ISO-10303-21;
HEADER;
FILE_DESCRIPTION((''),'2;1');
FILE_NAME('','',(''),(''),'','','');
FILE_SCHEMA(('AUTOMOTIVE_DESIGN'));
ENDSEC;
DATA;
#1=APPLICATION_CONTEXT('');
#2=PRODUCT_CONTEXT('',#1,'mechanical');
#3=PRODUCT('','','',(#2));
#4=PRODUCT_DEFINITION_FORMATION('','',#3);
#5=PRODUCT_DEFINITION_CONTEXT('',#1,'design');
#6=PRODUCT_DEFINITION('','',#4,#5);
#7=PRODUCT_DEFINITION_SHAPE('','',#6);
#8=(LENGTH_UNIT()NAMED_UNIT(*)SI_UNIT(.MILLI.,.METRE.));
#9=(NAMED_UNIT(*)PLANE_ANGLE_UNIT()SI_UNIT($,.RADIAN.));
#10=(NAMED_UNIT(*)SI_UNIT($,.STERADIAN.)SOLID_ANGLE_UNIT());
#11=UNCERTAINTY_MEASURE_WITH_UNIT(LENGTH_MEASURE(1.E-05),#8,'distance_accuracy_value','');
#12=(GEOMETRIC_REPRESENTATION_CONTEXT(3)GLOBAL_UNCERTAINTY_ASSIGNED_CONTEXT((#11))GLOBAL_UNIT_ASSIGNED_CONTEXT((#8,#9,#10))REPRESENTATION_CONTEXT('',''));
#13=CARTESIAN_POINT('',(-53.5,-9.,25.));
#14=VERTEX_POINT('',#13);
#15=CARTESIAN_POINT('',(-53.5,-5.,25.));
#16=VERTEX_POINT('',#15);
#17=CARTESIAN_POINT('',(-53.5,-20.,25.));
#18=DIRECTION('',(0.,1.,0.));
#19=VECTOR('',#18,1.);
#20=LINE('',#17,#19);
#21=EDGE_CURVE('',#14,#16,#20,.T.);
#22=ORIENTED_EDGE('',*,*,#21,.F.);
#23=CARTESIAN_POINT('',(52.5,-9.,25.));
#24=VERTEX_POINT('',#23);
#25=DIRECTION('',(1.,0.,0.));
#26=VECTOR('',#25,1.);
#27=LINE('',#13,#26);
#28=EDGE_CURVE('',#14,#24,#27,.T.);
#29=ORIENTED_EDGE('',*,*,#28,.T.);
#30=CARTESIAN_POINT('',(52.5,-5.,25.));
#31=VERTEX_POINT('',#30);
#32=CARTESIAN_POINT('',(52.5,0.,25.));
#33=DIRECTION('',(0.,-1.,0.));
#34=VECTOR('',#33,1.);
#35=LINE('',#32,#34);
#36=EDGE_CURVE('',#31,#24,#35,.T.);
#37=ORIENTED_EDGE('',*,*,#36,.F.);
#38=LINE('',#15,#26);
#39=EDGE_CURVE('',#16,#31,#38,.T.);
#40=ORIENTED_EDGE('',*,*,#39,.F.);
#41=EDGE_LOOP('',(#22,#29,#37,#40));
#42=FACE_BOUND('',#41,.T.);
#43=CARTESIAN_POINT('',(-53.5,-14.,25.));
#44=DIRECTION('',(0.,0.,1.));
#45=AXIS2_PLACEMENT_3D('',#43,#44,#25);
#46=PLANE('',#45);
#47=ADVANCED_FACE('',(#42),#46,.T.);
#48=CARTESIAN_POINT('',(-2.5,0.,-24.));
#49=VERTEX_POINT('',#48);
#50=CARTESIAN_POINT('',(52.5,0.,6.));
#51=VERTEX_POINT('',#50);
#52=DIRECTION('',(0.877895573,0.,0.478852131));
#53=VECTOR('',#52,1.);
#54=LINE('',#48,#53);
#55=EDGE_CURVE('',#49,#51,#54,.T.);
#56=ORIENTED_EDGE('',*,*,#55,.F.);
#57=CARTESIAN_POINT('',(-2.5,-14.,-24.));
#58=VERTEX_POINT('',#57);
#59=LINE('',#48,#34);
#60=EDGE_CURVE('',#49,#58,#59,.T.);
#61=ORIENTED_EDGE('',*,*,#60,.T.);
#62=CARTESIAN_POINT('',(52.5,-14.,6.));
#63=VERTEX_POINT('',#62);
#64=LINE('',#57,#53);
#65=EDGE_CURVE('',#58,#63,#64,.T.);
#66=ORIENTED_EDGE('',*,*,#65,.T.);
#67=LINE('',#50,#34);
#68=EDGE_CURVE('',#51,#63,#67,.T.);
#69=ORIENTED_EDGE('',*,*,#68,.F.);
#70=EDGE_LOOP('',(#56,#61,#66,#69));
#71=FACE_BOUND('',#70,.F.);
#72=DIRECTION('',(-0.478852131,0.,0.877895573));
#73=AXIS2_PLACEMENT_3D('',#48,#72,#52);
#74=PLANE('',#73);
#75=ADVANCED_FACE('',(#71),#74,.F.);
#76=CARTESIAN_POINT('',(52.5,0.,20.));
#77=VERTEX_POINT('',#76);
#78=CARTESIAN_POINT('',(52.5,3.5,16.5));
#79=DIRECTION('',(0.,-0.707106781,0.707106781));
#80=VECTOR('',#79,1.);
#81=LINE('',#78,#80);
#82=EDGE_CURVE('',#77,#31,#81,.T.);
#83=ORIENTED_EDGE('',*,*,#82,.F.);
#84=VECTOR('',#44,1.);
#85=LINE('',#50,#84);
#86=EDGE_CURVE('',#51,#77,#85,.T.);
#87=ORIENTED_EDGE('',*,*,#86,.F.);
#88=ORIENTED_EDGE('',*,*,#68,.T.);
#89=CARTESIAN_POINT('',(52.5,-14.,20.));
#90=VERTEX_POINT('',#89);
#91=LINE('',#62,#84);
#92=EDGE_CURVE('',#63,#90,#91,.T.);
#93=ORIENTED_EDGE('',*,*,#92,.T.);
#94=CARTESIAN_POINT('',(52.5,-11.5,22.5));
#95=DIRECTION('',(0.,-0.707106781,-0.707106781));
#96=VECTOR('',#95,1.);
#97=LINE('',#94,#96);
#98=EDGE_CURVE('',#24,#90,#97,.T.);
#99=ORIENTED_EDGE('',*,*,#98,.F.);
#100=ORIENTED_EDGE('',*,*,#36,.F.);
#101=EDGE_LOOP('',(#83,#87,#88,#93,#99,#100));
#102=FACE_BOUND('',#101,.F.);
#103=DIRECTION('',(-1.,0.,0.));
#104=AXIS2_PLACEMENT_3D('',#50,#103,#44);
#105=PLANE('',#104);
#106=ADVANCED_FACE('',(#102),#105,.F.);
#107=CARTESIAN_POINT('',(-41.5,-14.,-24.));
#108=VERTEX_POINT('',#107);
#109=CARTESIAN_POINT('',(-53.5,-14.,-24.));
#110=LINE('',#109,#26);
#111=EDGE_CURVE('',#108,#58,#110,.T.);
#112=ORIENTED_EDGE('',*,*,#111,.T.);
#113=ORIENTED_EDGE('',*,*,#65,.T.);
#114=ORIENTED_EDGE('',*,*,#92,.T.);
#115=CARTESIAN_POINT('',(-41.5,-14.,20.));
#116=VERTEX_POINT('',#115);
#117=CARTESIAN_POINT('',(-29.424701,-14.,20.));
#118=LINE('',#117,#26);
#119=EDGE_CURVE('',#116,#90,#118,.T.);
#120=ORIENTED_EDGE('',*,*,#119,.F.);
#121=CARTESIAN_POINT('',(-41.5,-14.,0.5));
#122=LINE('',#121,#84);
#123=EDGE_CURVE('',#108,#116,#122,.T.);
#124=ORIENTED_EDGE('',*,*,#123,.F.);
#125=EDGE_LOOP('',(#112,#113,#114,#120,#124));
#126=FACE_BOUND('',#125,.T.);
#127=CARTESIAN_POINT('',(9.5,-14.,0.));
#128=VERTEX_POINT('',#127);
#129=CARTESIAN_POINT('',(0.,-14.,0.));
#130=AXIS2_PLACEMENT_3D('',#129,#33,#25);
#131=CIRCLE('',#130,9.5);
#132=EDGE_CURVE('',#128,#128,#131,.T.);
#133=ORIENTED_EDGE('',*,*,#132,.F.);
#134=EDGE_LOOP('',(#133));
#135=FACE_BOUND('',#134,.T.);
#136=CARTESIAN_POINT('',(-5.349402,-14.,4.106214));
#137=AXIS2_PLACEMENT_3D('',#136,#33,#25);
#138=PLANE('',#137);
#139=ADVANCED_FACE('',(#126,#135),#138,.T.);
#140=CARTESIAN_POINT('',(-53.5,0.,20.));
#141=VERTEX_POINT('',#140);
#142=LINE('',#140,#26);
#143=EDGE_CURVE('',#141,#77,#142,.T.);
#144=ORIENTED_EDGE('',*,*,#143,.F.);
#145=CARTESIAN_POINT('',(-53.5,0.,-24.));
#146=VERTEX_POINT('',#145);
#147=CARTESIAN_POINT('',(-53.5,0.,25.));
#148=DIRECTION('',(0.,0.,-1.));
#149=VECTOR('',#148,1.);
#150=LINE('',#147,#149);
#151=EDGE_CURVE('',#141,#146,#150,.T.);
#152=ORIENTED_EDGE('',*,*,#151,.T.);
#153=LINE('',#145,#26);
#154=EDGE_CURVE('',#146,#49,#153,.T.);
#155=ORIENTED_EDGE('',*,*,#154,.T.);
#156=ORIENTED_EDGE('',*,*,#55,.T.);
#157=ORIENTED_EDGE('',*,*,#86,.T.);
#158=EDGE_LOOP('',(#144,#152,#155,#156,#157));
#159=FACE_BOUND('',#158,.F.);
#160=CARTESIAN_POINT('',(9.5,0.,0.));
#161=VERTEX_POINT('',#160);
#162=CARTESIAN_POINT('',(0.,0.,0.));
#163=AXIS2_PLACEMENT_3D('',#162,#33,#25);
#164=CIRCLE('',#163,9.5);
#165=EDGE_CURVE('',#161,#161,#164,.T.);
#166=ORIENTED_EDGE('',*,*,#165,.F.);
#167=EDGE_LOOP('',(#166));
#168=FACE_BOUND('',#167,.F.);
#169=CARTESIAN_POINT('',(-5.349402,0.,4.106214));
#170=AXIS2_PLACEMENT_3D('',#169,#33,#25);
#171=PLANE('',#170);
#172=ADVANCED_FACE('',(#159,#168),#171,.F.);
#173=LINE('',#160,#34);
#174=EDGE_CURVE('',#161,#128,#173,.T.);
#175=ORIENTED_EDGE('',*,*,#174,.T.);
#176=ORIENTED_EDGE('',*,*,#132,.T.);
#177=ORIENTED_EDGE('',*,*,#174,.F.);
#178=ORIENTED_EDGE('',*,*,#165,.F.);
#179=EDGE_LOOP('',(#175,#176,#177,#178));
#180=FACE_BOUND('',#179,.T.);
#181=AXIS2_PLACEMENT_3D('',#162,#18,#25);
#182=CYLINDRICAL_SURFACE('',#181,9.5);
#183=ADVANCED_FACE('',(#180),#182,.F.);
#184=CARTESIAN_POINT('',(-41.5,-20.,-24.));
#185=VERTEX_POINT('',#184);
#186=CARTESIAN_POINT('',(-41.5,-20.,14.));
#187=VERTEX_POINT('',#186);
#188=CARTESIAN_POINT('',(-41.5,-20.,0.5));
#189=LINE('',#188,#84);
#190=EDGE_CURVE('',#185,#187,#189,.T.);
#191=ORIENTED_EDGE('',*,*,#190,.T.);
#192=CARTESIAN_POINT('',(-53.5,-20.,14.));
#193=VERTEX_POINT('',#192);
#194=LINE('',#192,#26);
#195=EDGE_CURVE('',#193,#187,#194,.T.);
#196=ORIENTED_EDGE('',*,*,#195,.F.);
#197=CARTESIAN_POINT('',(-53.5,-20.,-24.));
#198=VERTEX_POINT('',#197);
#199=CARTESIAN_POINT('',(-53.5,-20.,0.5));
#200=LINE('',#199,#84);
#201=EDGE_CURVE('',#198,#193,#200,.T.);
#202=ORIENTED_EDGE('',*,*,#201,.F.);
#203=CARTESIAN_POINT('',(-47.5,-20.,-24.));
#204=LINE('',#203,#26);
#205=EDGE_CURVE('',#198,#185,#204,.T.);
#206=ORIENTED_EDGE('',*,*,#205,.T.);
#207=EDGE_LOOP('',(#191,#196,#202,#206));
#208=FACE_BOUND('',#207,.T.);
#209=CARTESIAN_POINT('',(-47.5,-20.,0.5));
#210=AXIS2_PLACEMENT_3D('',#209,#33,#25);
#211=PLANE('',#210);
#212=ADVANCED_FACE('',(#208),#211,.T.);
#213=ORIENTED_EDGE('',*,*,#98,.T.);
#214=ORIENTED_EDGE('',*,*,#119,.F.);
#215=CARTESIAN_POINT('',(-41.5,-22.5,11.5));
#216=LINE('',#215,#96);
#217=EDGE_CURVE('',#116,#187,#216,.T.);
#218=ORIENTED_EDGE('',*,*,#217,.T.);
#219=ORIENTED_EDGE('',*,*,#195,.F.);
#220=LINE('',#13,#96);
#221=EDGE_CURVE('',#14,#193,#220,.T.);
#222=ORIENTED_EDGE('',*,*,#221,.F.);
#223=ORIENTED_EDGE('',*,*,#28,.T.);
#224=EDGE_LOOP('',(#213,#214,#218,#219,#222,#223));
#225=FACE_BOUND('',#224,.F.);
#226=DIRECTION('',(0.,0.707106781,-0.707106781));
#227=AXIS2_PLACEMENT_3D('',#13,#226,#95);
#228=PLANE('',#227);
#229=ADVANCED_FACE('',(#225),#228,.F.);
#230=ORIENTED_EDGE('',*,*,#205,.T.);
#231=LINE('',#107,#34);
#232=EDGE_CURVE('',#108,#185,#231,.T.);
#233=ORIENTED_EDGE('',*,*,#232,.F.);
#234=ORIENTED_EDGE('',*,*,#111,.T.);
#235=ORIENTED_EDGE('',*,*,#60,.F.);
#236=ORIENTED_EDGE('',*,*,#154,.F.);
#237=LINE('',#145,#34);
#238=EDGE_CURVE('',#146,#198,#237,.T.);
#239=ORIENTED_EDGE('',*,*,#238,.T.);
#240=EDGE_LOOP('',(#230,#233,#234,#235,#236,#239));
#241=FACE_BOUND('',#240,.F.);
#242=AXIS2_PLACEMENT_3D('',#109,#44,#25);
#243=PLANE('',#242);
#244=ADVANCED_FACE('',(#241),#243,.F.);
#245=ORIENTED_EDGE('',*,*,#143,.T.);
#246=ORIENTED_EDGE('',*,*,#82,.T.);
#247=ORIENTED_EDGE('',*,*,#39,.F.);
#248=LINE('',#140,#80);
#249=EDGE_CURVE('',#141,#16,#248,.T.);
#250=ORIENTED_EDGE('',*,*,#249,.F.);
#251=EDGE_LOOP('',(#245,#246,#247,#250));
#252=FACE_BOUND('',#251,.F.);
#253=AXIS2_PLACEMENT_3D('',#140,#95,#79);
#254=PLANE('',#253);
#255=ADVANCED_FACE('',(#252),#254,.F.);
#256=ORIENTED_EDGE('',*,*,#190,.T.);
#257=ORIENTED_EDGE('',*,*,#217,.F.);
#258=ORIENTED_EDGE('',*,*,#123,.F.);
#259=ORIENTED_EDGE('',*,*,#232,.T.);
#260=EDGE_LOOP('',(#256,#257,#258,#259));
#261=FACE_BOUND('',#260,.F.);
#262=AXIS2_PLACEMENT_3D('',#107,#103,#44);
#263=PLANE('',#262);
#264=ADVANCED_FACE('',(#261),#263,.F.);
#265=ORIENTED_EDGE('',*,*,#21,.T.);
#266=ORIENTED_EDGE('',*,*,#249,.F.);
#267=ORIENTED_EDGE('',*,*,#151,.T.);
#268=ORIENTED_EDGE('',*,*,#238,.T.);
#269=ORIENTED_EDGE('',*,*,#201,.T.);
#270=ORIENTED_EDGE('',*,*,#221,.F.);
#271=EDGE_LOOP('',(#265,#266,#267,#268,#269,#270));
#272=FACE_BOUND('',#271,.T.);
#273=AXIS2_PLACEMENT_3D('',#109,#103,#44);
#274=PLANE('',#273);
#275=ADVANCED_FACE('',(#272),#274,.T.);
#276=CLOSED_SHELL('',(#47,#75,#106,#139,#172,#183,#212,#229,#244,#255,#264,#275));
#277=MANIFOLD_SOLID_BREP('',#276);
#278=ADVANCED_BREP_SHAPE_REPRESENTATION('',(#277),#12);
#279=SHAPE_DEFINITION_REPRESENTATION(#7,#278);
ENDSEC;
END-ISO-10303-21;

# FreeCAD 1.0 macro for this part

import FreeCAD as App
import Part
import Sketcher

V = App.Vector

doc = App.newDocument("Part")
body = doc.addObject("PartDesign::Body", "Body")

sketch1 = doc.addObject("Sketcher::SketchObject", "Sketch")
body.addObject(sketch1)
sketch1.AttachmentSupport = (doc.XZ_Plane, [""])
sketch1.MapMode = "FlatFace"
sketch1.addGeometry([
    Part.LineSegment(V(52, 25, 0), V(-54, 25, 0)),
    Part.LineSegment(V(-54, 25, 0), V(-54, -24, 0)),
    Part.LineSegment(V(-54, -24, 0), V(-2, -24, 0)),
    Part.LineSegment(V(-2, -24, 0), V(52, 6, 0)),
    Part.LineSegment(V(52, 6, 0), V(52, 25, 0)),
    Part.Circle(V(0, 0, 0), V(0, 0, 1), 10),
], False)
sketch1.addConstraint([
    Sketcher.Constraint("Coincident", 0, 2, 1, 1),
    Sketcher.Constraint("Coincident", 1, 2, 2, 1),
    Sketcher.Constraint("Coincident", 2, 2, 3, 1),
    Sketcher.Constraint("Coincident", 3, 2, 4, 1),
    Sketcher.Constraint("Coincident", 4, 2, 0, 1),
    Sketcher.Constraint("Horizontal", 0),
    Sketcher.Constraint("Vertical", 1),
    Sketcher.Constraint("Horizontal", 2),
    Sketcher.Constraint("Vertical", 4),
    Sketcher.Constraint("Coincident", 5, 3, -1, 1),
    Sketcher.Constraint("Diameter", 5, 19.0),
    Sketcher.Constraint("DistanceX", 0, 2, 0, 1, 106.0),
    Sketcher.Constraint("DistanceX", 2, 1, 2, 2, 51.0),
    Sketcher.Constraint("DistanceY", 1, 2, 1, 1, 49.0),
    Sketcher.Constraint("DistanceY", 4, 1, 4, 2, 19.0),
    Sketcher.Constraint("DistanceY", -1, 1, 0, 2, 25.0),
    Sketcher.Constraint("DistanceX", 0, 2, -1, 1, 53.5),
])
pad1 = doc.addObject("PartDesign::Pad", "Pad")
body.addObject(pad1)
pad1.Profile = sketch1
pad1.Length = 14

sketch2 = doc.addObject("Sketcher::SketchObject", "Sketch001")
body.addObject(sketch2)
sketch2.AttachmentSupport = (doc.XZ_Plane, [""])
sketch2.MapMode = "FlatFace"
sketch2.AttachmentOffset = App.Placement(V(0, 0, 14), App.Rotation())
sketch2.addGeometry([
    Part.LineSegment(V(-54, 25, 0), V(-54, -24, 0)),
    Part.LineSegment(V(-54, -24, 0), V(-42, -24, 0)),
    Part.LineSegment(V(-42, -24, 0), V(-42, 25, 0)),
    Part.LineSegment(V(-42, 25, 0), V(-54, 25, 0)),
], False)
sketch2.addConstraint([
    Sketcher.Constraint("Coincident", 0, 2, 1, 1),
    Sketcher.Constraint("Coincident", 1, 2, 2, 1),
    Sketcher.Constraint("Coincident", 2, 2, 3, 1),
    Sketcher.Constraint("Coincident", 3, 2, 0, 1),
    Sketcher.Constraint("Vertical", 0),
    Sketcher.Constraint("Horizontal", 1),
    Sketcher.Constraint("Vertical", 2),
    Sketcher.Constraint("Horizontal", 3),
    Sketcher.Constraint("DistanceX", 1, 1, 1, 2, 12.0),
    Sketcher.Constraint("DistanceY", 0, 2, 0, 1, 49.0),
    Sketcher.Constraint("DistanceY", 0, 2, -1, 1, 24.0),
    Sketcher.Constraint("DistanceX", 0, 2, -1, 1, 53.5),
])
pad2 = doc.addObject("PartDesign::Pad", "Pad001")
body.addObject(pad2)
pad2.Profile = sketch2
pad2.Length = 6

sketch3 = doc.addObject("Sketcher::SketchObject", "Sketch002")
body.addObject(sketch3)
sketch3.AttachmentSupport = (doc.YZ_Plane, [""])
sketch3.MapMode = "FlatFace"
sketch3.AttachmentOffset = App.Placement(V(0, 0, -53.5), App.Rotation())
sketch3.addGeometry([
    Part.LineSegment(V(-20, 25, 0), V(-9, 25, 0)),
    Part.LineSegment(V(-9, 25, 0), V(-20, 14, 0)),
    Part.LineSegment(V(-20, 14, 0), V(-20, 25, 0)),
    Part.LineSegment(V(0, 25, 0), V(0, 20, 0)),
    Part.LineSegment(V(0, 20, 0), V(-5, 25, 0)),
    Part.LineSegment(V(-5, 25, 0), V(0, 25, 0)),
], False)
sketch3.addConstraint([
    Sketcher.Constraint("Coincident", 0, 2, 1, 1),
    Sketcher.Constraint("Coincident", 1, 2, 2, 1),
    Sketcher.Constraint("Coincident", 2, 2, 0, 1),
    Sketcher.Constraint("Coincident", 3, 2, 4, 1),
    Sketcher.Constraint("Coincident", 4, 2, 5, 1),
    Sketcher.Constraint("Coincident", 5, 2, 3, 1),
    Sketcher.Constraint("Horizontal", 0),
    Sketcher.Constraint("Vertical", 2),
    Sketcher.Constraint("Vertical", 3),
    Sketcher.Constraint("Horizontal", 5),
    Sketcher.Constraint("PointOnObject", 3, 2, -2),
    Sketcher.Constraint("Perpendicular", 1, 4),
    Sketcher.Constraint("Horizontal", 2, 2, 4, 2),
    Sketcher.Constraint("Equal", 0, 2),
    Sketcher.Constraint("DistanceX", 0, 1, 0, 2, 11.0),
    Sketcher.Constraint("DistanceX", 5, 1, 5, 2, 5.0),
    Sketcher.Constraint("DistanceX", 0, 2, -1, 1, 9.0),
    Sketcher.Constraint("DistanceY", -1, 1, 0, 2, 25.0),
])
pocket1 = doc.addObject("PartDesign::Pocket", "Pocket")
body.addObject(pocket1)
pocket1.Profile = sketch3
pocket1.Type = "ThroughAll"
pocket1.Reversed = True

doc.recompute()
